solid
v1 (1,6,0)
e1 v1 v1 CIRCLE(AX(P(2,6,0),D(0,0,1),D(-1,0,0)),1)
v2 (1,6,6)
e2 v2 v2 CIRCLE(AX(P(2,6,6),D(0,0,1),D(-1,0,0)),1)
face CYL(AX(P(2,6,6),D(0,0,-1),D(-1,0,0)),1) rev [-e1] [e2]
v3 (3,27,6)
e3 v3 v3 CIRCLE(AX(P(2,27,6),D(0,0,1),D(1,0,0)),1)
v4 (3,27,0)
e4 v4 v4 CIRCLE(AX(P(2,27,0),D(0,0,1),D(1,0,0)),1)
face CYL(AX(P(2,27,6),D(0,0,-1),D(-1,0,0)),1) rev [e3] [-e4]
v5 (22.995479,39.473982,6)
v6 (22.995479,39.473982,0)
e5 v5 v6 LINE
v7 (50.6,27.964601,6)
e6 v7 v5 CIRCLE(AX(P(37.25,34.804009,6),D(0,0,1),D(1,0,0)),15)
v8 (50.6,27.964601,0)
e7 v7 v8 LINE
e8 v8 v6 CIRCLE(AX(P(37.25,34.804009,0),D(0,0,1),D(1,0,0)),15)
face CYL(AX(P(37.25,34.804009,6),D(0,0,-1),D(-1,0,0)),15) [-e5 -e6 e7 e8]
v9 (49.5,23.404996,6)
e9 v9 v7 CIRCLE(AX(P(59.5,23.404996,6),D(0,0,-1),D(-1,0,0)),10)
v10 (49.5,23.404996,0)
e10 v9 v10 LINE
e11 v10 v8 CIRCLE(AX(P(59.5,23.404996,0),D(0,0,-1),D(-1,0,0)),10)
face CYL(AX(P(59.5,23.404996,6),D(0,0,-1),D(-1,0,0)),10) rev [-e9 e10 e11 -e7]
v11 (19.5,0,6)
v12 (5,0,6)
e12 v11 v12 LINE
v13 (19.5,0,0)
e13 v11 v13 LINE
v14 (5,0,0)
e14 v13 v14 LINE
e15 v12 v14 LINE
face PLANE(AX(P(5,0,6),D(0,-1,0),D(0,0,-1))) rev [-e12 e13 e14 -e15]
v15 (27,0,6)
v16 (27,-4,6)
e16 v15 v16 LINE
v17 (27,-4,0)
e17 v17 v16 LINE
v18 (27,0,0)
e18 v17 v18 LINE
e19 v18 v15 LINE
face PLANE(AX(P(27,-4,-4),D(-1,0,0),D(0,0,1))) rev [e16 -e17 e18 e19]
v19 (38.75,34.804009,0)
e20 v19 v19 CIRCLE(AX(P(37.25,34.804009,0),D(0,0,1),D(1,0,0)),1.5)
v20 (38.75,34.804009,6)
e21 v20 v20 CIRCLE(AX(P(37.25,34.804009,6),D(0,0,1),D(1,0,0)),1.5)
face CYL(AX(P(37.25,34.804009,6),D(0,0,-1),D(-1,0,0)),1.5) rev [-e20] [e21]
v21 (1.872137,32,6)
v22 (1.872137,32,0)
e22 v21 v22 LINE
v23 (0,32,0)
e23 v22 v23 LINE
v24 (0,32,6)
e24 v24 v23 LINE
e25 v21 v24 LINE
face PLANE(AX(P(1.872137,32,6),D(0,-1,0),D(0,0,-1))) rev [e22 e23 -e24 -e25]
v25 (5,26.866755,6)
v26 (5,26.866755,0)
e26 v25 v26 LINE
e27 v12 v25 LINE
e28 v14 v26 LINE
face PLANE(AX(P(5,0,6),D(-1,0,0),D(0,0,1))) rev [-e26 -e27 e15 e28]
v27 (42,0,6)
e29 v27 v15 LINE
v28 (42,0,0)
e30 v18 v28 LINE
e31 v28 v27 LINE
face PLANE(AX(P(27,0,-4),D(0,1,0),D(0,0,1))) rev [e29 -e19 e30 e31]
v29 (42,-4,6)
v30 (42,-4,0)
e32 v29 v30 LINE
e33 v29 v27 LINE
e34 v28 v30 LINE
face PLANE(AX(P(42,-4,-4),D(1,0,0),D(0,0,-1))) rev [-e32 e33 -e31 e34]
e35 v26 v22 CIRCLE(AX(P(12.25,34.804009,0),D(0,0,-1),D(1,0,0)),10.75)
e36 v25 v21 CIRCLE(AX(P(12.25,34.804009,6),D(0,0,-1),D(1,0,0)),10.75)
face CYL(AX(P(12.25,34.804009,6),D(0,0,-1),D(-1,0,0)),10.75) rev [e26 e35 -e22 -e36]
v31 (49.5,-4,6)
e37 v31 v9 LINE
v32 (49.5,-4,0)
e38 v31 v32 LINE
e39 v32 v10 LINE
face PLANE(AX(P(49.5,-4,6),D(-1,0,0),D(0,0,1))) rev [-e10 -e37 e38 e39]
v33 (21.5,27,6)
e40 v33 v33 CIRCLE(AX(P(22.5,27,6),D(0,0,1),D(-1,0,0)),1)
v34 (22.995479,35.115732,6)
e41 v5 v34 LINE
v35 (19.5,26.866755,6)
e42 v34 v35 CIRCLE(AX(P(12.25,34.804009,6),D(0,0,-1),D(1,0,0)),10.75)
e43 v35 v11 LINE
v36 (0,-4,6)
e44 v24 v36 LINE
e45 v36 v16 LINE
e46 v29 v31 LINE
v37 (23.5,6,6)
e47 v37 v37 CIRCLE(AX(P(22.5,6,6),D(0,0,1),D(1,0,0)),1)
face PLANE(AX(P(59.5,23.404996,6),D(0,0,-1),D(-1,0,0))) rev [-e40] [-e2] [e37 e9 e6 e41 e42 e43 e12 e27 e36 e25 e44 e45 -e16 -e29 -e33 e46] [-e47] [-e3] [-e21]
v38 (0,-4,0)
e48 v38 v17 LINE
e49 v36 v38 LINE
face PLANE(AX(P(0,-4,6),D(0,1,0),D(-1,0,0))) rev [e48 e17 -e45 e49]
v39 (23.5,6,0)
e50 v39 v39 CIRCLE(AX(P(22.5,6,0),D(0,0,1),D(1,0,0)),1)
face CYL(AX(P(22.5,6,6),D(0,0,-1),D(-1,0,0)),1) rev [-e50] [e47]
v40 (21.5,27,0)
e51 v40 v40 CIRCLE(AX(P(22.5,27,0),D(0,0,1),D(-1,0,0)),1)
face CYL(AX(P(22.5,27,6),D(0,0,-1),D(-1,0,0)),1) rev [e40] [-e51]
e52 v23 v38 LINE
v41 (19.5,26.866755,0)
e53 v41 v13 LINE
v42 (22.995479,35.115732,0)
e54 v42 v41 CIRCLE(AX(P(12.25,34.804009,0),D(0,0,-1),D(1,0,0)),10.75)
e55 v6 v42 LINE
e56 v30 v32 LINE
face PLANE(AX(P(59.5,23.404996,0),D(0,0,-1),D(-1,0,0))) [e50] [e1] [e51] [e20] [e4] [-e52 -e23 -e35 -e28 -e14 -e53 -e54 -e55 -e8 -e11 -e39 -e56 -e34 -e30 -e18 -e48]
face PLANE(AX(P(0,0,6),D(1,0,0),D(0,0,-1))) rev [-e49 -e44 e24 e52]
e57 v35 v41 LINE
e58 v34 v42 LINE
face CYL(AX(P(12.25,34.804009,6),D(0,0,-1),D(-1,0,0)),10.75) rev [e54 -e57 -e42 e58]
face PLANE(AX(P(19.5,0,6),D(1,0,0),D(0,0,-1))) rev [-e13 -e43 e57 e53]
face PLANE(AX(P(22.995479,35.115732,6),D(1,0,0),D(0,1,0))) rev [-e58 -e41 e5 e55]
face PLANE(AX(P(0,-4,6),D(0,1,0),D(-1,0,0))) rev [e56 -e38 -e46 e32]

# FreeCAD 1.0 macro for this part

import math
import FreeCAD as App
import Part
import Sketcher

V = App.Vector
Q = App.Units.Quantity

doc = App.newDocument("Part")
body = doc.addObject("PartDesign::Body", "Body")

# Sketch on XY plane
sketch1 = body.newObject("Sketcher::SketchObject", "Sketch")
sketch1.AttachmentSupport = (doc.getObject("XY_Plane"), [""])
sketch1.MapMode = "FlatFace"
sketch1.addGeometry(Part.LineSegment(V(1.9, 32, 0), V(0, 32, 0)), False)
sketch1.addGeometry(Part.LineSegment(V(0, 32, 0), V(0, -4, 0)), False)
sketch1.addGeometry(Part.LineSegment(V(0, -4, 0), V(49.5, -4, 0)), False)
sketch1.addGeometry(Part.LineSegment(V(49.5, -4, 0), V(49.5, 23.4, 0)), False)
sketch1.addGeometry(Part.ArcOfCircle(Part.Circle(V(59.5, 23.4, 0), V(0, 0, 1), 10), math.radians(153), math.radians(180)), False)
sketch1.addGeometry(Part.ArcOfCircle(Part.Circle(V(37.2, 34.8, 0), V(0, 0, 1), 15), math.radians(-27), math.radians(162)), False)
sketch1.addGeometry(Part.LineSegment(V(23, 39.5, 0), V(23, 35.1, 0)), False)
sketch1.addGeometry(Part.ArcOfCircle(Part.Circle(V(12.3, 34.8, 0), V(0, 0, 1), 10.7), math.radians(-48), math.radians(2)), False)
sketch1.addGeometry(Part.LineSegment(V(19.5, 26.9, 0), V(19.5, 0, 0)), False)
sketch1.addGeometry(Part.LineSegment(V(19.5, 0, 0), V(5, 0, 0)), False)
sketch1.addGeometry(Part.LineSegment(V(5, 0, 0), V(5, 26.9, 0)), False)
sketch1.addGeometry(Part.ArcOfCircle(Part.Circle(V(12.3, 34.8, 0), V(0, 0, 1), 10.8), math.radians(-165), math.radians(-132)), False)
sketch1.addGeometry(Part.Circle(V(22.5, 6, 0), V(0, 0, 1), 1), False)
sketch1.addGeometry(Part.Circle(V(2, 6, 0), V(0, 0, 1), 1), False)
sketch1.addGeometry(Part.Circle(V(22.5, 27, 0), V(0, 0, 1), 1), False)
sketch1.addGeometry(Part.Circle(V(37.2, 34.8, 0), V(0, 0, 1), 1.5), False)
sketch1.addGeometry(Part.Circle(V(2, 27, 0), V(0, 0, 1), 1), False)
sketch1.addConstraint(Sketcher.Constraint("Coincident", 0, 2, 1, 1))
sketch1.addConstraint(Sketcher.Constraint("Coincident", 1, 2, 2, 1))
sketch1.addConstraint(Sketcher.Constraint("Coincident", 2, 2, 3, 1))
sketch1.addConstraint(Sketcher.Constraint("Tangent", 3, 2, 4, 2))
sketch1.addConstraint(Sketcher.Constraint("Tangent", 4, 1, 5, 1))
sketch1.addConstraint(Sketcher.Constraint("Coincident", 5, 2, 6, 1))
sketch1.addConstraint(Sketcher.Constraint("Coincident", 6, 2, 7, 2))
sketch1.addConstraint(Sketcher.Constraint("Coincident", 7, 1, 8, 1))
sketch1.addConstraint(Sketcher.Constraint("Coincident", 8, 2, 9, 1))
sketch1.addConstraint(Sketcher.Constraint("Coincident", 9, 2, 10, 1))
sketch1.addConstraint(Sketcher.Constraint("Coincident", 10, 2, 11, 2))
sketch1.addConstraint(Sketcher.Constraint("Coincident", 11, 1, 0, 1))
sketch1.addConstraint(Sketcher.Constraint("Horizontal", 0))
sketch1.addConstraint(Sketcher.Constraint("Vertical", 1))
sketch1.addConstraint(Sketcher.Constraint("Horizontal", 2))
sketch1.addConstraint(Sketcher.Constraint("Vertical", 3))
sketch1.addConstraint(Sketcher.Constraint("Vertical", 6))
sketch1.addConstraint(Sketcher.Constraint("Vertical", 8))
sketch1.addConstraint(Sketcher.Constraint("Horizontal", 9))
sketch1.addConstraint(Sketcher.Constraint("Vertical", 10))
sketch1.addConstraint(Sketcher.Constraint("Coincident", 11, 3, 7, 3))
sketch1.addConstraint(Sketcher.Constraint("Coincident", 15, 3, 5, 3))
sketch1.addConstraint(Sketcher.Constraint("Equal", 7, 11))
sketch1.addConstraint(Sketcher.Constraint("Equal", 12, 13))
sketch1.addConstraint(Sketcher.Constraint("Equal", 13, 14))
sketch1.addConstraint(Sketcher.Constraint("Equal", 14, 16))
sketch1.addConstraint(Sketcher.Constraint("PointOnObject", 0, 2, -2))
sketch1.addConstraint(Sketcher.Constraint("PointOnObject", 8, 2, -1))
sketch1.addConstraint(Sketcher.Constraint("Horizontal", 5, 3, 7, 3))
sketch1.addConstraint(Sketcher.Constraint("Horizontal", 12, 3, 13, 3))
sketch1.addConstraint(Sketcher.Constraint("Horizontal", 14, 3, 16, 3))
sketch1.addConstraint(Sketcher.Constraint("Horizontal", 7, 1, 10, 2))
sketch1.addConstraint(Sketcher.Constraint("Vertical", 12, 3, 14, 3))
sketch1.addConstraint(Sketcher.Constraint("Vertical", 13, 3, 16, 3))
sketch1.addConstraint(Sketcher.Constraint("Diameter", 12, Q("2 mm")))
sketch1.addConstraint(Sketcher.Constraint("Diameter", 15, Q("3 mm")))
sketch1.addConstraint(Sketcher.Constraint("Radius", 4, Q("10 mm")))
sketch1.addConstraint(Sketcher.Constraint("Radius", 5, Q("15 mm")))
sketch1.addConstraint(Sketcher.Constraint("DistanceY", 1, 2, 1, 1, Q("36 mm")))
sketch1.addConstraint(Sketcher.Constraint("Radius", 7, Q("10.75 mm")))
sketch1.addConstraint(Sketcher.Constraint("DistanceX", 2, 1, 2, 2, Q("49.5 mm")))
sketch1.addConstraint(Sketcher.Constraint("DistanceX", 9, 2, 9, 1, Q("14.5 mm")))
sketch1.addConstraint(Sketcher.Constraint("DistanceY", -1, 1, 12, 3, Q("6 mm")))
sketch1.addConstraint(Sketcher.Constraint("DistanceX", -1, 1, 13, 3, Q("2 mm")))
sketch1.addConstraint(Sketcher.Constraint("DistanceY", -1, 1, 14, 3, Q("27 mm")))
sketch1.addConstraint(Sketcher.Constraint("DistanceY", -1, 1, 0, 2, Q("32 mm")))
sketch1.addConstraint(Sketcher.Constraint("DistanceX", -1, 1, 9, 2, Q("5 mm")))
sketch1.addConstraint(Sketcher.Constraint("DistanceX", 7, 3, 5, 3, Q("25 mm")))
sketch1.addConstraint(Sketcher.Constraint("DistanceX", 12, 3, 4, 3, Q("37 mm")))
sketch1.addConstraint(Sketcher.Constraint("DistanceY", 6, 2, 6, 1, Q("4.35825 mm")))
sketch1.addConstraint(Sketcher.Constraint("DistanceY", -1, 1, 4, 1, Q("27.964601 mm")))
pad1 = body.newObject("PartDesign::Pad", "Pad")
pad1.Profile = sketch1
pad1.Length = 6

# Sketch on XY plane
sketch2 = body.newObject("Sketcher::SketchObject", "Sketch001")
sketch2.AttachmentSupport = (doc.getObject("XY_Plane"), [""])
sketch2.MapMode = "FlatFace"
sketch2.AttachmentOffset = App.Placement(V(0, 0, 6), App.Rotation())
sketch2.addGeometry(Part.LineSegment(V(27, 0, 0), V(27, -4, 0)), False)
sketch2.addGeometry(Part.LineSegment(V(27, -4, 0), V(42, -4, 0)), False)
sketch2.addGeometry(Part.LineSegment(V(42, -4, 0), V(42, 0, 0)), False)
sketch2.addGeometry(Part.LineSegment(V(42, 0, 0), V(27, 0, 0)), False)
sketch2.addConstraint(Sketcher.Constraint("Coincident", 0, 2, 1, 1))
sketch2.addConstraint(Sketcher.Constraint("Coincident", 1, 2, 2, 1))
sketch2.addConstraint(Sketcher.Constraint("Coincident", 2, 2, 3, 1))
sketch2.addConstraint(Sketcher.Constraint("Coincident", 3, 2, 0, 1))
sketch2.addConstraint(Sketcher.Constraint("Vertical", 0))
sketch2.addConstraint(Sketcher.Constraint("Horizontal", 1))
sketch2.addConstraint(Sketcher.Constraint("Vertical", 2))
sketch2.addConstraint(Sketcher.Constraint("Horizontal", 3))
sketch2.addConstraint(Sketcher.Constraint("PointOnObject", 2, 2, -1))
sketch2.addConstraint(Sketcher.Constraint("DistanceX", 1, 1, 1, 2, Q("15 mm")))
sketch2.addConstraint(Sketcher.Constraint("DistanceY", 0, 2, 0, 1, Q("4 mm")))
sketch2.addConstraint(Sketcher.Constraint("DistanceX", -1, 1, 0, 2, Q("27 mm")))
pocket1 = body.newObject("PartDesign::Pocket", "Pocket")
pocket1.Profile = sketch2
pocket1.Length = 10

doc.recompute()
